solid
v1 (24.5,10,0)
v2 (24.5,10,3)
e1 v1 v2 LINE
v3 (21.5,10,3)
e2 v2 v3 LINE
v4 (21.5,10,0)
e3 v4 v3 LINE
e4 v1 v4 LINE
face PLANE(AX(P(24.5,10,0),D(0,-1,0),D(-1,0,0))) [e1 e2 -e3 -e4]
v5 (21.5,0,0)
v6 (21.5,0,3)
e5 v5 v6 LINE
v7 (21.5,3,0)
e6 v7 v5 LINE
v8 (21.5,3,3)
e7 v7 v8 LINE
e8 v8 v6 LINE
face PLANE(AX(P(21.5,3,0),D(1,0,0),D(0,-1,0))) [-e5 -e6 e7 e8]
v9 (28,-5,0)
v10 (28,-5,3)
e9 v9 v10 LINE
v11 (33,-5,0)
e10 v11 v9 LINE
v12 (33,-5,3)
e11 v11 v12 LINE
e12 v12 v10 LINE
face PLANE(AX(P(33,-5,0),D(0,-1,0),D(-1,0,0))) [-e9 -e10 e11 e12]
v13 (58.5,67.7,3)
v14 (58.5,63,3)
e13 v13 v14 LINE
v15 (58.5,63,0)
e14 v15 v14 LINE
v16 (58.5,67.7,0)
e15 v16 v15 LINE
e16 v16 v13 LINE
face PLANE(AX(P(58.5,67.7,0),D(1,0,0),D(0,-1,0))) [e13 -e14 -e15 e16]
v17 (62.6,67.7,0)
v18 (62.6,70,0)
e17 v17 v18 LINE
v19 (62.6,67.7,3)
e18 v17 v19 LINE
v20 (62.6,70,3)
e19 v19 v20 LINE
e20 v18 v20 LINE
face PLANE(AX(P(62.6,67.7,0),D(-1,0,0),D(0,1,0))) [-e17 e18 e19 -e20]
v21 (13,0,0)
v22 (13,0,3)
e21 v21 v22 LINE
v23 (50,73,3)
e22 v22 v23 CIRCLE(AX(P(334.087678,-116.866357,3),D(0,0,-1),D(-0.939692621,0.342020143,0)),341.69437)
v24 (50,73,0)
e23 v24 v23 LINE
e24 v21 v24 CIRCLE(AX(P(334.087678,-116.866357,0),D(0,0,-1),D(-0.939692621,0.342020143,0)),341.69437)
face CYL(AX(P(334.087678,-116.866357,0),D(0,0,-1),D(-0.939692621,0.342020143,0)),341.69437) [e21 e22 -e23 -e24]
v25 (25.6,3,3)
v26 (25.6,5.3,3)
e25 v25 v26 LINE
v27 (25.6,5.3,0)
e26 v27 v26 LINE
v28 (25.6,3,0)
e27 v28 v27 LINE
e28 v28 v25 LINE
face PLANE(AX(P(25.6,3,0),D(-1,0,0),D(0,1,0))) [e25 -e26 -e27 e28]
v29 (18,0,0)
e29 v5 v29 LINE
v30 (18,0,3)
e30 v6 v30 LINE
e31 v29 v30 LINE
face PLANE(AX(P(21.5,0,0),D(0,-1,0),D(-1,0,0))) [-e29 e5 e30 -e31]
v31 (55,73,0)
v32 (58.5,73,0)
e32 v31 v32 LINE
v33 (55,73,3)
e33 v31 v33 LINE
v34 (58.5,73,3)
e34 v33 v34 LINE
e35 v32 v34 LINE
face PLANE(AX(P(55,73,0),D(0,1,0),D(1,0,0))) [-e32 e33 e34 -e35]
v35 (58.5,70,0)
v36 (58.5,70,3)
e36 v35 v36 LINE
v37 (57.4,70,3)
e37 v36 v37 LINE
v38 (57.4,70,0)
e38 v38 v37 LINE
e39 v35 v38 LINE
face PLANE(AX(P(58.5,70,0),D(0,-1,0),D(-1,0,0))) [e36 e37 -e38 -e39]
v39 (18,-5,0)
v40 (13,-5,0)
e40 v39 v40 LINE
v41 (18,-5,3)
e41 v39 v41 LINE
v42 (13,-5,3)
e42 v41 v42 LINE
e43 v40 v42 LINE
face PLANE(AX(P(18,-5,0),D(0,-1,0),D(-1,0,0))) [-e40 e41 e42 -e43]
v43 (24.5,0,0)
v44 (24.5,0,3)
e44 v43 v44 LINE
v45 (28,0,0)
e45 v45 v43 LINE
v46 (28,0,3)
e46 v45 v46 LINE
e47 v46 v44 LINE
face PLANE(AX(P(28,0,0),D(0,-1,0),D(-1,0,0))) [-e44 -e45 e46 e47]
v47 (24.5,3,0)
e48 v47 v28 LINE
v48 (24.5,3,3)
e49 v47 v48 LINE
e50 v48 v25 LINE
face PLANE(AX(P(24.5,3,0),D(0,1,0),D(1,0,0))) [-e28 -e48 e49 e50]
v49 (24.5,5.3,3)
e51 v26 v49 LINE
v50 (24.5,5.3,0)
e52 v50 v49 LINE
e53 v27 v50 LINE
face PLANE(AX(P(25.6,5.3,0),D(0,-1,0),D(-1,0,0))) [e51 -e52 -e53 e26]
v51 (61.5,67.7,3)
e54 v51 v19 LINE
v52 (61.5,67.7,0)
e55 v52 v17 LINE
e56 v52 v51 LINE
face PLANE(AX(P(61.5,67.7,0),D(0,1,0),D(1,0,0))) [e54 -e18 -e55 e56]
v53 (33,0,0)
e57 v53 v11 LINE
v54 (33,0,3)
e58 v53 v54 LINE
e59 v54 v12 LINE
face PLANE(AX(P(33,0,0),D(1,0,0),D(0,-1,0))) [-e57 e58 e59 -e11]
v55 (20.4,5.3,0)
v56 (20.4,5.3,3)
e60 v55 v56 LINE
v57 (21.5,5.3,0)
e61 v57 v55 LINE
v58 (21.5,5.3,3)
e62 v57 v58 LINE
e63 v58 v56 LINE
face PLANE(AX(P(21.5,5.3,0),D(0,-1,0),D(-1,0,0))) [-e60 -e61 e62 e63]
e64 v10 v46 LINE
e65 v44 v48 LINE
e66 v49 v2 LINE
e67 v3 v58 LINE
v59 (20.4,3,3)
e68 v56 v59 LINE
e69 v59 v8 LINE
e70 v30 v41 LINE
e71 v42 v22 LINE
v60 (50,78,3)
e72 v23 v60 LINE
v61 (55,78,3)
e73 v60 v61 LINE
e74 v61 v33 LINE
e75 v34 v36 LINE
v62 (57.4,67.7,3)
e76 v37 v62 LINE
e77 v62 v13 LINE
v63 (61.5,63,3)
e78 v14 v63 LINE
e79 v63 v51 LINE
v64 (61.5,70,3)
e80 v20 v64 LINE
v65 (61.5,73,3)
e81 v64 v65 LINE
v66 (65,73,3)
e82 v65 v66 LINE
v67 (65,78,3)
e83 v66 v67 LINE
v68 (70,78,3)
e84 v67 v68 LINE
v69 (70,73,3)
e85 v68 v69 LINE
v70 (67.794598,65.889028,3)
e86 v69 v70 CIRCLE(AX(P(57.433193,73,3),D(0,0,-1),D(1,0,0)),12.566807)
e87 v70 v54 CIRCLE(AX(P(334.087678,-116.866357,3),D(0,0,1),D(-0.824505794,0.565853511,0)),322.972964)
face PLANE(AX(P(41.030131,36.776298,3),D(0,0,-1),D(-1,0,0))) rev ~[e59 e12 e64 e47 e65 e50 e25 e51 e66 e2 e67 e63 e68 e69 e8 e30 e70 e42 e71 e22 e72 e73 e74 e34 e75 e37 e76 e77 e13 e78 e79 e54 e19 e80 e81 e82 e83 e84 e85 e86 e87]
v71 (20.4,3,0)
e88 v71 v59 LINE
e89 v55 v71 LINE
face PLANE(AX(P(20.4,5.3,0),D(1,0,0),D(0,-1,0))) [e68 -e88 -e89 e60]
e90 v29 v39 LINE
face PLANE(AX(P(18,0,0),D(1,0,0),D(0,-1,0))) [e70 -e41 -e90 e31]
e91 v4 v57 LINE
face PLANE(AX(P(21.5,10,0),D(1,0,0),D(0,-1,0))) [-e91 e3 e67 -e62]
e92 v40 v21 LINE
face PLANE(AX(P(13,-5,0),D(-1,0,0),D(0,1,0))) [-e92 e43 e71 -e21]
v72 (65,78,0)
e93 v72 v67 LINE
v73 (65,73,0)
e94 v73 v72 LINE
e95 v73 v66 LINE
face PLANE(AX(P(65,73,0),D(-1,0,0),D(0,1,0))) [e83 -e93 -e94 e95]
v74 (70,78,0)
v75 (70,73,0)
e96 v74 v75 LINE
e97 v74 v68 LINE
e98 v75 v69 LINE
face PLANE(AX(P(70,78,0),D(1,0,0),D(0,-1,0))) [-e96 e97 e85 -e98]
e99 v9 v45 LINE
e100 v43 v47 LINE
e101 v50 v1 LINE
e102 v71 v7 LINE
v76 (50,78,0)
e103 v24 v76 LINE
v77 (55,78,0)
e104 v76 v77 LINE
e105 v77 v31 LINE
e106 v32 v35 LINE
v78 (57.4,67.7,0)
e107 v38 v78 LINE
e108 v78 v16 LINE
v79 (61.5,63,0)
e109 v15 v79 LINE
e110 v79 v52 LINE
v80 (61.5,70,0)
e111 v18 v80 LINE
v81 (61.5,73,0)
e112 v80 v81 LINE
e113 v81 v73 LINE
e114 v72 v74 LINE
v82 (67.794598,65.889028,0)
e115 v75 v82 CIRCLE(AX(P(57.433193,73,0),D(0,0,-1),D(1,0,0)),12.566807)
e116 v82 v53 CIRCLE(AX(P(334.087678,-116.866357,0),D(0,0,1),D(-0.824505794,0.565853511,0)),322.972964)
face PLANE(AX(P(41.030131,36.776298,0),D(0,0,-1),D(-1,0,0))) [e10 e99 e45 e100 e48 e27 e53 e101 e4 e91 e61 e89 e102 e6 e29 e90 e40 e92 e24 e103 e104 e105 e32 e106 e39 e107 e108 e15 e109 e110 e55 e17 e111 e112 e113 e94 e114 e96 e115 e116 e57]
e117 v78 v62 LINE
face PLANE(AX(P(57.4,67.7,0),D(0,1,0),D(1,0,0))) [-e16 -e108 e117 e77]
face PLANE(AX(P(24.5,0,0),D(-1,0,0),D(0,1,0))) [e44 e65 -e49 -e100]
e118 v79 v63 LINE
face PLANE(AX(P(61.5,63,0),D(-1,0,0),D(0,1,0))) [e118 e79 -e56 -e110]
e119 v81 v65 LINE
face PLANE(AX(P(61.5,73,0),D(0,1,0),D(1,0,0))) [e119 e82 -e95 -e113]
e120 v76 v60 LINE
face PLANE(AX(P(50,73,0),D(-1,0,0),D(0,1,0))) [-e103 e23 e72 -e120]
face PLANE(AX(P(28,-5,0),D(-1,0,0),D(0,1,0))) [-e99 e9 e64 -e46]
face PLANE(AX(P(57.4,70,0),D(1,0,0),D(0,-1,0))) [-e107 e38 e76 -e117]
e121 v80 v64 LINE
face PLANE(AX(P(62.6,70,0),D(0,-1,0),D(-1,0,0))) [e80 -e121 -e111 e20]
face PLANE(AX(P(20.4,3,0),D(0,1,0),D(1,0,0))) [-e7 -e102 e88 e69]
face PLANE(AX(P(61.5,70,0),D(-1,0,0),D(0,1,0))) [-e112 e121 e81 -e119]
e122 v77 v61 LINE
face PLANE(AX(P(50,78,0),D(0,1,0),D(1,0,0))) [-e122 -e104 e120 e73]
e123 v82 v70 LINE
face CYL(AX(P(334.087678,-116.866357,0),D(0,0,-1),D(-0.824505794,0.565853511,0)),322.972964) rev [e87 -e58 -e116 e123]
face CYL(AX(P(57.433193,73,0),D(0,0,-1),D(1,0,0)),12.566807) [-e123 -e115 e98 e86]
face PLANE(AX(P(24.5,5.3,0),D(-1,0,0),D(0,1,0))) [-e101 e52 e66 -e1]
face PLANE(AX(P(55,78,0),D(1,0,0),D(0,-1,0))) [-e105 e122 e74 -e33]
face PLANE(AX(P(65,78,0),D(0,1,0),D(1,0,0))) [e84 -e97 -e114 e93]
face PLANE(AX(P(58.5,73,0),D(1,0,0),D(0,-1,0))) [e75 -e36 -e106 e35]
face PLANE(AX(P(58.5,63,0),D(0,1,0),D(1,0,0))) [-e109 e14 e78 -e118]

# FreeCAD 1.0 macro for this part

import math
import FreeCAD as App
import Part
import Sketcher
from FreeCAD import Vector

doc = App.newDocument("Part")
body = doc.addObject("PartDesign::Body", "Body")

# Sketch on XY plane
sketch1 = body.newObject("Sketcher::SketchObject", "Sketch")
sketch1.AttachmentSupport = (doc.getObject("XY_Plane"), [""])
sketch1.MapMode = "FlatFace"
sketch1.addGeometry(Part.LineSegment(Vector(65, 73, 0), Vector(61.5, 73, 0)), False)
sketch1.addGeometry(Part.LineSegment(Vector(61.5, 73, 0), Vector(61.5, 70, 0)), False)
sketch1.addGeometry(Part.LineSegment(Vector(61.5, 70, 0), Vector(62.6, 70, 0)), False)
sketch1.addGeometry(Part.LineSegment(Vector(62.6, 70, 0), Vector(62.6, 67.7, 0)), False)
sketch1.addGeometry(Part.LineSegment(Vector(62.6, 67.7, 0), Vector(61.5, 67.7, 0)), False)
sketch1.addGeometry(Part.LineSegment(Vector(61.5, 67.7, 0), Vector(61.5, 63, 0)), False)
sketch1.addGeometry(Part.LineSegment(Vector(61.5, 63, 0), Vector(58.5, 63, 0)), False)
sketch1.addGeometry(Part.LineSegment(Vector(58.5, 63, 0), Vector(58.5, 67.7, 0)), False)
sketch1.addGeometry(Part.LineSegment(Vector(58.5, 67.7, 0), Vector(57.4, 67.7, 0)), False)
sketch1.addGeometry(Part.LineSegment(Vector(57.4, 67.7, 0), Vector(57.4, 70, 0)), False)
sketch1.addGeometry(Part.LineSegment(Vector(57.4, 70, 0), Vector(58.5, 70, 0)), False)
sketch1.addGeometry(Part.LineSegment(Vector(58.5, 70, 0), Vector(58.5, 73, 0)), False)
sketch1.addGeometry(Part.LineSegment(Vector(58.5, 73, 0), Vector(55, 73, 0)), False)
sketch1.addGeometry(Part.LineSegment(Vector(55, 73, 0), Vector(55, 78, 0)), False)
sketch1.addGeometry(Part.LineSegment(Vector(55, 78, 0), Vector(50, 78, 0)), False)
sketch1.addGeometry(Part.LineSegment(Vector(50, 78, 0), Vector(50, 73, 0)), False)
sketch1.addGeometry(Part.ArcOfCircle(Part.Circle(Vector(334.1, -116.9, 0), Vector(0, 0, 1), 341.7), math.radians(146.24), math.radians(160)), False)
sketch1.addGeometry(Part.LineSegment(Vector(13, 0, 0), Vector(13, -5, 0)), False)
sketch1.addGeometry(Part.LineSegment(Vector(13, -5, 0), Vector(18, -5, 0)), False)
sketch1.addGeometry(Part.LineSegment(Vector(18, -5, 0), Vector(18, 0, 0)), False)
sketch1.addGeometry(Part.LineSegment(Vector(18, 0, 0), Vector(21.5, 0, 0)), False)
sketch1.addGeometry(Part.LineSegment(Vector(21.5, 0, 0), Vector(21.5, 3, 0)), False)
sketch1.addGeometry(Part.LineSegment(Vector(21.5, 3, 0), Vector(20.4, 3, 0)), False)
sketch1.addGeometry(Part.LineSegment(Vector(20.4, 3, 0), Vector(20.4, 5.3, 0)), False)
sketch1.addGeometry(Part.LineSegment(Vector(20.4, 5.3, 0), Vector(21.5, 5.3, 0)), False)
sketch1.addGeometry(Part.LineSegment(Vector(21.5, 5.3, 0), Vector(21.5, 10, 0)), False)
sketch1.addGeometry(Part.LineSegment(Vector(21.5, 10, 0), Vector(24.5, 10, 0)), False)
sketch1.addGeometry(Part.LineSegment(Vector(24.5, 10, 0), Vector(24.5, 5.3, 0)), False)
sketch1.addGeometry(Part.LineSegment(Vector(24.5, 5.3, 0), Vector(25.6, 5.3, 0)), False)
sketch1.addGeometry(Part.LineSegment(Vector(25.6, 5.3, 0), Vector(25.6, 3, 0)), False)
sketch1.addGeometry(Part.LineSegment(Vector(25.6, 3, 0), Vector(24.5, 3, 0)), False)
sketch1.addGeometry(Part.LineSegment(Vector(24.5, 3, 0), Vector(24.5, 0, 0)), False)
sketch1.addGeometry(Part.LineSegment(Vector(24.5, 0, 0), Vector(28, 0, 0)), False)
sketch1.addGeometry(Part.LineSegment(Vector(28, 0, 0), Vector(28, -5, 0)), False)
sketch1.addGeometry(Part.LineSegment(Vector(28, -5, 0), Vector(33, -5, 0)), False)
sketch1.addGeometry(Part.LineSegment(Vector(33, -5, 0), Vector(33, 0, 0)), False)
sketch1.addGeometry(Part.ArcOfCircle(Part.Circle(Vector(334.1, -116.9, 0), Vector(0, 0, 1), 323), math.radians(145.54), math.radians(158.79)), False)
sketch1.addGeometry(Part.ArcOfCircle(Part.Circle(Vector(57.4, 73, 0), Vector(0, 0, 1), 12.6), math.radians(-34), math.radians(0)), False)
sketch1.addGeometry(Part.LineSegment(Vector(70, 73, 0), Vector(70, 78, 0)), False)
sketch1.addGeometry(Part.LineSegment(Vector(70, 78, 0), Vector(65, 78, 0)), False)
sketch1.addGeometry(Part.LineSegment(Vector(65, 78, 0), Vector(65, 73, 0)), False)
sketch1.addConstraint(Sketcher.Constraint("Coincident", 0, 2, 1, 1))
sketch1.addConstraint(Sketcher.Constraint("Coincident", 1, 2, 2, 1))
sketch1.addConstraint(Sketcher.Constraint("Coincident", 2, 2, 3, 1))
sketch1.addConstraint(Sketcher.Constraint("Coincident", 3, 2, 4, 1))
sketch1.addConstraint(Sketcher.Constraint("Coincident", 4, 2, 5, 1))
sketch1.addConstraint(Sketcher.Constraint("Coincident", 5, 2, 6, 1))
sketch1.addConstraint(Sketcher.Constraint("Coincident", 6, 2, 7, 1))
sketch1.addConstraint(Sketcher.Constraint("Coincident", 7, 2, 8, 1))
sketch1.addConstraint(Sketcher.Constraint("Coincident", 8, 2, 9, 1))
sketch1.addConstraint(Sketcher.Constraint("Coincident", 9, 2, 10, 1))
sketch1.addConstraint(Sketcher.Constraint("Coincident", 10, 2, 11, 1))
sketch1.addConstraint(Sketcher.Constraint("Coincident", 11, 2, 12, 1))
sketch1.addConstraint(Sketcher.Constraint("Coincident", 12, 2, 13, 1))
sketch1.addConstraint(Sketcher.Constraint("Coincident", 13, 2, 14, 1))
sketch1.addConstraint(Sketcher.Constraint("Coincident", 14, 2, 15, 1))
sketch1.addConstraint(Sketcher.Constraint("Coincident", 15, 2, 16, 1))
sketch1.addConstraint(Sketcher.Constraint("Coincident", 16, 2, 17, 1))
sketch1.addConstraint(Sketcher.Constraint("Coincident", 17, 2, 18, 1))
sketch1.addConstraint(Sketcher.Constraint("Coincident", 18, 2, 19, 1))
sketch1.addConstraint(Sketcher.Constraint("Coincident", 19, 2, 20, 1))
sketch1.addConstraint(Sketcher.Constraint("Coincident", 20, 2, 21, 1))
sketch1.addConstraint(Sketcher.Constraint("Coincident", 21, 2, 22, 1))
sketch1.addConstraint(Sketcher.Constraint("Coincident", 22, 2, 23, 1))
sketch1.addConstraint(Sketcher.Constraint("Coincident", 23, 2, 24, 1))
sketch1.addConstraint(Sketcher.Constraint("Coincident", 24, 2, 25, 1))
sketch1.addConstraint(Sketcher.Constraint("Coincident", 25, 2, 26, 1))
sketch1.addConstraint(Sketcher.Constraint("Coincident", 26, 2, 27, 1))
sketch1.addConstraint(Sketcher.Constraint("Coincident", 27, 2, 28, 1))
sketch1.addConstraint(Sketcher.Constraint("Coincident", 28, 2, 29, 1))
sketch1.addConstraint(Sketcher.Constraint("Coincident", 29, 2, 30, 1))
sketch1.addConstraint(Sketcher.Constraint("Coincident", 30, 2, 31, 1))
sketch1.addConstraint(Sketcher.Constraint("Coincident", 31, 2, 32, 1))
sketch1.addConstraint(Sketcher.Constraint("Coincident", 32, 2, 33, 1))
sketch1.addConstraint(Sketcher.Constraint("Coincident", 33, 2, 34, 1))
sketch1.addConstraint(Sketcher.Constraint("Coincident", 34, 2, 35, 1))
sketch1.addConstraint(Sketcher.Constraint("Coincident", 35, 2, 36, 2))
sketch1.addConstraint(Sketcher.Constraint("Tangent", 36, 1, 37, 1))
sketch1.addConstraint(Sketcher.Constraint("Tangent", 37, 2, 38, 1))
sketch1.addConstraint(Sketcher.Constraint("Coincident", 38, 2, 39, 1))
sketch1.addConstraint(Sketcher.Constraint("Coincident", 39, 2, 40, 1))
sketch1.addConstraint(Sketcher.Constraint("Coincident", 40, 2, 0, 1))
sketch1.addConstraint(Sketcher.Constraint("Horizontal", 0))
sketch1.addConstraint(Sketcher.Constraint("Vertical", 1))
sketch1.addConstraint(Sketcher.Constraint("Horizontal", 2))
sketch1.addConstraint(Sketcher.Constraint("Vertical", 3))
sketch1.addConstraint(Sketcher.Constraint("Horizontal", 4))
sketch1.addConstraint(Sketcher.Constraint("Vertical", 5))
sketch1.addConstraint(Sketcher.Constraint("Horizontal", 6))
sketch1.addConstraint(Sketcher.Constraint("Vertical", 7))
sketch1.addConstraint(Sketcher.Constraint("Horizontal", 8))
sketch1.addConstraint(Sketcher.Constraint("Vertical", 9))
sketch1.addConstraint(Sketcher.Constraint("Horizontal", 10))
sketch1.addConstraint(Sketcher.Constraint("Vertical", 11))
sketch1.addConstraint(Sketcher.Constraint("Horizontal", 12))
sketch1.addConstraint(Sketcher.Constraint("Vertical", 13))
sketch1.addConstraint(Sketcher.Constraint("Horizontal", 14))
sketch1.addConstraint(Sketcher.Constraint("Vertical", 15))
sketch1.addConstraint(Sketcher.Constraint("Vertical", 17))
sketch1.addConstraint(Sketcher.Constraint("Horizontal", 18))
sketch1.addConstraint(Sketcher.Constraint("Vertical", 19))
sketch1.addConstraint(Sketcher.Constraint("Horizontal", 20))
sketch1.addConstraint(Sketcher.Constraint("Vertical", 21))
sketch1.addConstraint(Sketcher.Constraint("Horizontal", 22))
sketch1.addConstraint(Sketcher.Constraint("Vertical", 23))
sketch1.addConstraint(Sketcher.Constraint("Horizontal", 24))
sketch1.addConstraint(Sketcher.Constraint("Vertical", 25))
sketch1.addConstraint(Sketcher.Constraint("Horizontal", 26))
sketch1.addConstraint(Sketcher.Constraint("Vertical", 27))
sketch1.addConstraint(Sketcher.Constraint("Horizontal", 28))
sketch1.addConstraint(Sketcher.Constraint("Vertical", 29))
sketch1.addConstraint(Sketcher.Constraint("Horizontal", 30))
sketch1.addConstraint(Sketcher.Constraint("Vertical", 31))
sketch1.addConstraint(Sketcher.Constraint("Horizontal", 32))
sketch1.addConstraint(Sketcher.Constraint("Vertical", 33))
sketch1.addConstraint(Sketcher.Constraint("Horizontal", 34))
sketch1.addConstraint(Sketcher.Constraint("Vertical", 35))
sketch1.addConstraint(Sketcher.Constraint("Vertical", 38))
sketch1.addConstraint(Sketcher.Constraint("Horizontal", 39))
sketch1.addConstraint(Sketcher.Constraint("Vertical", 40))
sketch1.addConstraint(Sketcher.Constraint("Coincident", 36, 3, 16, 3))
sketch1.addConstraint(Sketcher.Constraint("PointOnObject", 16, 2, -1))
sketch1.addConstraint(Sketcher.Constraint("PointOnObject", 19, 2, -1))
sketch1.addConstraint(Sketcher.Constraint("PointOnObject", 31, 2, -1))
sketch1.addConstraint(Sketcher.Constraint("PointOnObject", 35, 2, -1))
sketch1.addConstraint(Sketcher.Constraint("Horizontal", 37, 3, 0, 2))
sketch1.addConstraint(Sketcher.Constraint("Horizontal", 4, 2, 7, 2))
sketch1.addConstraint(Sketcher.Constraint("Horizontal", 2, 2, 9, 2))
sketch1.addConstraint(Sketcher.Constraint("Horizontal", 0, 2, 11, 2))
sketch1.addConstraint(Sketcher.Constraint("Horizontal", 12, 2, 15, 2))
sketch1.addConstraint(Sketcher.Constraint("Horizontal", 24, 2, 27, 2))
sketch1.addConstraint(Sketcher.Constraint("Horizontal", 22, 2, 29, 2))
sketch1.addConstraint(Sketcher.Constraint("Horizontal", 18, 2, 33, 2))
sketch1.addConstraint(Sketcher.Constraint("Horizontal", 14, 2, 38, 2))
sketch1.addConstraint(Sketcher.Constraint("Vertical", 1, 2, 4, 2))
sketch1.addConstraint(Sketcher.Constraint("Vertical", 7, 2, 10, 2))
sketch1.addConstraint(Sketcher.Constraint("Vertical", 21, 2, 24, 2))
sketch1.addConstraint(Sketcher.Constraint("Vertical", 27, 2, 30, 2))
sketch1.addConstraint(Sketcher.Constraint("Equal", 4, 8))
sketch1.addConstraint(Sketcher.Constraint("Equal", 0, 12))
sketch1.addConstraint(Sketcher.Constraint("Equal", 14, 18))
sketch1.addConstraint(Sketcher.Constraint("Equal", 12, 20))
sketch1.addConstraint(Sketcher.Constraint("Equal", 10, 22))
sketch1.addConstraint(Sketcher.Constraint("Equal", 6, 26))
sketch1.addConstraint(Sketcher.Constraint("Equal", 24, 28))
sketch1.addConstraint(Sketcher.Constraint("Equal", 20, 32))
sketch1.addConstraint(Sketcher.Constraint("Equal", 18, 34))
sketch1.addConstraint(Sketcher.Constraint("Equal", 34, 39))
sketch1.addConstraint(Sketcher.Constraint("Equal", 26, 1))
sketch1.addConstraint(Sketcher.Constraint("Equal", 39, 13))
sketch1.addConstraint(Sketcher.Constraint("Equal", 15, 17))
sketch1.addConstraint(Sketcher.Constraint("Equal", 11, 21))
sketch1.addConstraint(Sketcher.Constraint("Equal", 9, 23))
sketch1.addConstraint(Sketcher.Constraint("Equal", 7, 25))
sketch1.addConstraint(Sketcher.Constraint("DistanceX", 6, 2, 6, 1, 3.0))
sketch1.addConstraint(Sketcher.Constraint("DistanceX", 14, 2, 14, 1, 5.0))
sketch1.addConstraint(Sketcher.Constraint("DistanceX", 0, 2, 0, 1, 3.5))
sketch1.addConstraint(Sketcher.Constraint("DistanceX", 2, 1, 2, 2, 1.1))
sketch1.addConstraint(Sketcher.Constraint("DistanceY", 3, 2, 3, 1, 2.3))
sketch1.addConstraint(Sketcher.Constraint("DistanceY", 5, 2, 5, 1, 4.7))
sketch1.addConstraint(Sketcher.Constraint("DistanceY", -1, 1, 37, 3, 73.0))
sketch1.addConstraint(Sketcher.Constraint("DistanceX", -1, 1, 12, 2, 55.0))
sketch1.addConstraint(Sketcher.Constraint("DistanceX", -1, 1, 17, 2, 13.0))
sketch1.addConstraint(Sketcher.Constraint("Radius", 16, 341.69437))
pad1 = body.newObject("PartDesign::Pad", "Pad")
pad1.Profile = sketch1
pad1.Length = 3

doc.recompute()
